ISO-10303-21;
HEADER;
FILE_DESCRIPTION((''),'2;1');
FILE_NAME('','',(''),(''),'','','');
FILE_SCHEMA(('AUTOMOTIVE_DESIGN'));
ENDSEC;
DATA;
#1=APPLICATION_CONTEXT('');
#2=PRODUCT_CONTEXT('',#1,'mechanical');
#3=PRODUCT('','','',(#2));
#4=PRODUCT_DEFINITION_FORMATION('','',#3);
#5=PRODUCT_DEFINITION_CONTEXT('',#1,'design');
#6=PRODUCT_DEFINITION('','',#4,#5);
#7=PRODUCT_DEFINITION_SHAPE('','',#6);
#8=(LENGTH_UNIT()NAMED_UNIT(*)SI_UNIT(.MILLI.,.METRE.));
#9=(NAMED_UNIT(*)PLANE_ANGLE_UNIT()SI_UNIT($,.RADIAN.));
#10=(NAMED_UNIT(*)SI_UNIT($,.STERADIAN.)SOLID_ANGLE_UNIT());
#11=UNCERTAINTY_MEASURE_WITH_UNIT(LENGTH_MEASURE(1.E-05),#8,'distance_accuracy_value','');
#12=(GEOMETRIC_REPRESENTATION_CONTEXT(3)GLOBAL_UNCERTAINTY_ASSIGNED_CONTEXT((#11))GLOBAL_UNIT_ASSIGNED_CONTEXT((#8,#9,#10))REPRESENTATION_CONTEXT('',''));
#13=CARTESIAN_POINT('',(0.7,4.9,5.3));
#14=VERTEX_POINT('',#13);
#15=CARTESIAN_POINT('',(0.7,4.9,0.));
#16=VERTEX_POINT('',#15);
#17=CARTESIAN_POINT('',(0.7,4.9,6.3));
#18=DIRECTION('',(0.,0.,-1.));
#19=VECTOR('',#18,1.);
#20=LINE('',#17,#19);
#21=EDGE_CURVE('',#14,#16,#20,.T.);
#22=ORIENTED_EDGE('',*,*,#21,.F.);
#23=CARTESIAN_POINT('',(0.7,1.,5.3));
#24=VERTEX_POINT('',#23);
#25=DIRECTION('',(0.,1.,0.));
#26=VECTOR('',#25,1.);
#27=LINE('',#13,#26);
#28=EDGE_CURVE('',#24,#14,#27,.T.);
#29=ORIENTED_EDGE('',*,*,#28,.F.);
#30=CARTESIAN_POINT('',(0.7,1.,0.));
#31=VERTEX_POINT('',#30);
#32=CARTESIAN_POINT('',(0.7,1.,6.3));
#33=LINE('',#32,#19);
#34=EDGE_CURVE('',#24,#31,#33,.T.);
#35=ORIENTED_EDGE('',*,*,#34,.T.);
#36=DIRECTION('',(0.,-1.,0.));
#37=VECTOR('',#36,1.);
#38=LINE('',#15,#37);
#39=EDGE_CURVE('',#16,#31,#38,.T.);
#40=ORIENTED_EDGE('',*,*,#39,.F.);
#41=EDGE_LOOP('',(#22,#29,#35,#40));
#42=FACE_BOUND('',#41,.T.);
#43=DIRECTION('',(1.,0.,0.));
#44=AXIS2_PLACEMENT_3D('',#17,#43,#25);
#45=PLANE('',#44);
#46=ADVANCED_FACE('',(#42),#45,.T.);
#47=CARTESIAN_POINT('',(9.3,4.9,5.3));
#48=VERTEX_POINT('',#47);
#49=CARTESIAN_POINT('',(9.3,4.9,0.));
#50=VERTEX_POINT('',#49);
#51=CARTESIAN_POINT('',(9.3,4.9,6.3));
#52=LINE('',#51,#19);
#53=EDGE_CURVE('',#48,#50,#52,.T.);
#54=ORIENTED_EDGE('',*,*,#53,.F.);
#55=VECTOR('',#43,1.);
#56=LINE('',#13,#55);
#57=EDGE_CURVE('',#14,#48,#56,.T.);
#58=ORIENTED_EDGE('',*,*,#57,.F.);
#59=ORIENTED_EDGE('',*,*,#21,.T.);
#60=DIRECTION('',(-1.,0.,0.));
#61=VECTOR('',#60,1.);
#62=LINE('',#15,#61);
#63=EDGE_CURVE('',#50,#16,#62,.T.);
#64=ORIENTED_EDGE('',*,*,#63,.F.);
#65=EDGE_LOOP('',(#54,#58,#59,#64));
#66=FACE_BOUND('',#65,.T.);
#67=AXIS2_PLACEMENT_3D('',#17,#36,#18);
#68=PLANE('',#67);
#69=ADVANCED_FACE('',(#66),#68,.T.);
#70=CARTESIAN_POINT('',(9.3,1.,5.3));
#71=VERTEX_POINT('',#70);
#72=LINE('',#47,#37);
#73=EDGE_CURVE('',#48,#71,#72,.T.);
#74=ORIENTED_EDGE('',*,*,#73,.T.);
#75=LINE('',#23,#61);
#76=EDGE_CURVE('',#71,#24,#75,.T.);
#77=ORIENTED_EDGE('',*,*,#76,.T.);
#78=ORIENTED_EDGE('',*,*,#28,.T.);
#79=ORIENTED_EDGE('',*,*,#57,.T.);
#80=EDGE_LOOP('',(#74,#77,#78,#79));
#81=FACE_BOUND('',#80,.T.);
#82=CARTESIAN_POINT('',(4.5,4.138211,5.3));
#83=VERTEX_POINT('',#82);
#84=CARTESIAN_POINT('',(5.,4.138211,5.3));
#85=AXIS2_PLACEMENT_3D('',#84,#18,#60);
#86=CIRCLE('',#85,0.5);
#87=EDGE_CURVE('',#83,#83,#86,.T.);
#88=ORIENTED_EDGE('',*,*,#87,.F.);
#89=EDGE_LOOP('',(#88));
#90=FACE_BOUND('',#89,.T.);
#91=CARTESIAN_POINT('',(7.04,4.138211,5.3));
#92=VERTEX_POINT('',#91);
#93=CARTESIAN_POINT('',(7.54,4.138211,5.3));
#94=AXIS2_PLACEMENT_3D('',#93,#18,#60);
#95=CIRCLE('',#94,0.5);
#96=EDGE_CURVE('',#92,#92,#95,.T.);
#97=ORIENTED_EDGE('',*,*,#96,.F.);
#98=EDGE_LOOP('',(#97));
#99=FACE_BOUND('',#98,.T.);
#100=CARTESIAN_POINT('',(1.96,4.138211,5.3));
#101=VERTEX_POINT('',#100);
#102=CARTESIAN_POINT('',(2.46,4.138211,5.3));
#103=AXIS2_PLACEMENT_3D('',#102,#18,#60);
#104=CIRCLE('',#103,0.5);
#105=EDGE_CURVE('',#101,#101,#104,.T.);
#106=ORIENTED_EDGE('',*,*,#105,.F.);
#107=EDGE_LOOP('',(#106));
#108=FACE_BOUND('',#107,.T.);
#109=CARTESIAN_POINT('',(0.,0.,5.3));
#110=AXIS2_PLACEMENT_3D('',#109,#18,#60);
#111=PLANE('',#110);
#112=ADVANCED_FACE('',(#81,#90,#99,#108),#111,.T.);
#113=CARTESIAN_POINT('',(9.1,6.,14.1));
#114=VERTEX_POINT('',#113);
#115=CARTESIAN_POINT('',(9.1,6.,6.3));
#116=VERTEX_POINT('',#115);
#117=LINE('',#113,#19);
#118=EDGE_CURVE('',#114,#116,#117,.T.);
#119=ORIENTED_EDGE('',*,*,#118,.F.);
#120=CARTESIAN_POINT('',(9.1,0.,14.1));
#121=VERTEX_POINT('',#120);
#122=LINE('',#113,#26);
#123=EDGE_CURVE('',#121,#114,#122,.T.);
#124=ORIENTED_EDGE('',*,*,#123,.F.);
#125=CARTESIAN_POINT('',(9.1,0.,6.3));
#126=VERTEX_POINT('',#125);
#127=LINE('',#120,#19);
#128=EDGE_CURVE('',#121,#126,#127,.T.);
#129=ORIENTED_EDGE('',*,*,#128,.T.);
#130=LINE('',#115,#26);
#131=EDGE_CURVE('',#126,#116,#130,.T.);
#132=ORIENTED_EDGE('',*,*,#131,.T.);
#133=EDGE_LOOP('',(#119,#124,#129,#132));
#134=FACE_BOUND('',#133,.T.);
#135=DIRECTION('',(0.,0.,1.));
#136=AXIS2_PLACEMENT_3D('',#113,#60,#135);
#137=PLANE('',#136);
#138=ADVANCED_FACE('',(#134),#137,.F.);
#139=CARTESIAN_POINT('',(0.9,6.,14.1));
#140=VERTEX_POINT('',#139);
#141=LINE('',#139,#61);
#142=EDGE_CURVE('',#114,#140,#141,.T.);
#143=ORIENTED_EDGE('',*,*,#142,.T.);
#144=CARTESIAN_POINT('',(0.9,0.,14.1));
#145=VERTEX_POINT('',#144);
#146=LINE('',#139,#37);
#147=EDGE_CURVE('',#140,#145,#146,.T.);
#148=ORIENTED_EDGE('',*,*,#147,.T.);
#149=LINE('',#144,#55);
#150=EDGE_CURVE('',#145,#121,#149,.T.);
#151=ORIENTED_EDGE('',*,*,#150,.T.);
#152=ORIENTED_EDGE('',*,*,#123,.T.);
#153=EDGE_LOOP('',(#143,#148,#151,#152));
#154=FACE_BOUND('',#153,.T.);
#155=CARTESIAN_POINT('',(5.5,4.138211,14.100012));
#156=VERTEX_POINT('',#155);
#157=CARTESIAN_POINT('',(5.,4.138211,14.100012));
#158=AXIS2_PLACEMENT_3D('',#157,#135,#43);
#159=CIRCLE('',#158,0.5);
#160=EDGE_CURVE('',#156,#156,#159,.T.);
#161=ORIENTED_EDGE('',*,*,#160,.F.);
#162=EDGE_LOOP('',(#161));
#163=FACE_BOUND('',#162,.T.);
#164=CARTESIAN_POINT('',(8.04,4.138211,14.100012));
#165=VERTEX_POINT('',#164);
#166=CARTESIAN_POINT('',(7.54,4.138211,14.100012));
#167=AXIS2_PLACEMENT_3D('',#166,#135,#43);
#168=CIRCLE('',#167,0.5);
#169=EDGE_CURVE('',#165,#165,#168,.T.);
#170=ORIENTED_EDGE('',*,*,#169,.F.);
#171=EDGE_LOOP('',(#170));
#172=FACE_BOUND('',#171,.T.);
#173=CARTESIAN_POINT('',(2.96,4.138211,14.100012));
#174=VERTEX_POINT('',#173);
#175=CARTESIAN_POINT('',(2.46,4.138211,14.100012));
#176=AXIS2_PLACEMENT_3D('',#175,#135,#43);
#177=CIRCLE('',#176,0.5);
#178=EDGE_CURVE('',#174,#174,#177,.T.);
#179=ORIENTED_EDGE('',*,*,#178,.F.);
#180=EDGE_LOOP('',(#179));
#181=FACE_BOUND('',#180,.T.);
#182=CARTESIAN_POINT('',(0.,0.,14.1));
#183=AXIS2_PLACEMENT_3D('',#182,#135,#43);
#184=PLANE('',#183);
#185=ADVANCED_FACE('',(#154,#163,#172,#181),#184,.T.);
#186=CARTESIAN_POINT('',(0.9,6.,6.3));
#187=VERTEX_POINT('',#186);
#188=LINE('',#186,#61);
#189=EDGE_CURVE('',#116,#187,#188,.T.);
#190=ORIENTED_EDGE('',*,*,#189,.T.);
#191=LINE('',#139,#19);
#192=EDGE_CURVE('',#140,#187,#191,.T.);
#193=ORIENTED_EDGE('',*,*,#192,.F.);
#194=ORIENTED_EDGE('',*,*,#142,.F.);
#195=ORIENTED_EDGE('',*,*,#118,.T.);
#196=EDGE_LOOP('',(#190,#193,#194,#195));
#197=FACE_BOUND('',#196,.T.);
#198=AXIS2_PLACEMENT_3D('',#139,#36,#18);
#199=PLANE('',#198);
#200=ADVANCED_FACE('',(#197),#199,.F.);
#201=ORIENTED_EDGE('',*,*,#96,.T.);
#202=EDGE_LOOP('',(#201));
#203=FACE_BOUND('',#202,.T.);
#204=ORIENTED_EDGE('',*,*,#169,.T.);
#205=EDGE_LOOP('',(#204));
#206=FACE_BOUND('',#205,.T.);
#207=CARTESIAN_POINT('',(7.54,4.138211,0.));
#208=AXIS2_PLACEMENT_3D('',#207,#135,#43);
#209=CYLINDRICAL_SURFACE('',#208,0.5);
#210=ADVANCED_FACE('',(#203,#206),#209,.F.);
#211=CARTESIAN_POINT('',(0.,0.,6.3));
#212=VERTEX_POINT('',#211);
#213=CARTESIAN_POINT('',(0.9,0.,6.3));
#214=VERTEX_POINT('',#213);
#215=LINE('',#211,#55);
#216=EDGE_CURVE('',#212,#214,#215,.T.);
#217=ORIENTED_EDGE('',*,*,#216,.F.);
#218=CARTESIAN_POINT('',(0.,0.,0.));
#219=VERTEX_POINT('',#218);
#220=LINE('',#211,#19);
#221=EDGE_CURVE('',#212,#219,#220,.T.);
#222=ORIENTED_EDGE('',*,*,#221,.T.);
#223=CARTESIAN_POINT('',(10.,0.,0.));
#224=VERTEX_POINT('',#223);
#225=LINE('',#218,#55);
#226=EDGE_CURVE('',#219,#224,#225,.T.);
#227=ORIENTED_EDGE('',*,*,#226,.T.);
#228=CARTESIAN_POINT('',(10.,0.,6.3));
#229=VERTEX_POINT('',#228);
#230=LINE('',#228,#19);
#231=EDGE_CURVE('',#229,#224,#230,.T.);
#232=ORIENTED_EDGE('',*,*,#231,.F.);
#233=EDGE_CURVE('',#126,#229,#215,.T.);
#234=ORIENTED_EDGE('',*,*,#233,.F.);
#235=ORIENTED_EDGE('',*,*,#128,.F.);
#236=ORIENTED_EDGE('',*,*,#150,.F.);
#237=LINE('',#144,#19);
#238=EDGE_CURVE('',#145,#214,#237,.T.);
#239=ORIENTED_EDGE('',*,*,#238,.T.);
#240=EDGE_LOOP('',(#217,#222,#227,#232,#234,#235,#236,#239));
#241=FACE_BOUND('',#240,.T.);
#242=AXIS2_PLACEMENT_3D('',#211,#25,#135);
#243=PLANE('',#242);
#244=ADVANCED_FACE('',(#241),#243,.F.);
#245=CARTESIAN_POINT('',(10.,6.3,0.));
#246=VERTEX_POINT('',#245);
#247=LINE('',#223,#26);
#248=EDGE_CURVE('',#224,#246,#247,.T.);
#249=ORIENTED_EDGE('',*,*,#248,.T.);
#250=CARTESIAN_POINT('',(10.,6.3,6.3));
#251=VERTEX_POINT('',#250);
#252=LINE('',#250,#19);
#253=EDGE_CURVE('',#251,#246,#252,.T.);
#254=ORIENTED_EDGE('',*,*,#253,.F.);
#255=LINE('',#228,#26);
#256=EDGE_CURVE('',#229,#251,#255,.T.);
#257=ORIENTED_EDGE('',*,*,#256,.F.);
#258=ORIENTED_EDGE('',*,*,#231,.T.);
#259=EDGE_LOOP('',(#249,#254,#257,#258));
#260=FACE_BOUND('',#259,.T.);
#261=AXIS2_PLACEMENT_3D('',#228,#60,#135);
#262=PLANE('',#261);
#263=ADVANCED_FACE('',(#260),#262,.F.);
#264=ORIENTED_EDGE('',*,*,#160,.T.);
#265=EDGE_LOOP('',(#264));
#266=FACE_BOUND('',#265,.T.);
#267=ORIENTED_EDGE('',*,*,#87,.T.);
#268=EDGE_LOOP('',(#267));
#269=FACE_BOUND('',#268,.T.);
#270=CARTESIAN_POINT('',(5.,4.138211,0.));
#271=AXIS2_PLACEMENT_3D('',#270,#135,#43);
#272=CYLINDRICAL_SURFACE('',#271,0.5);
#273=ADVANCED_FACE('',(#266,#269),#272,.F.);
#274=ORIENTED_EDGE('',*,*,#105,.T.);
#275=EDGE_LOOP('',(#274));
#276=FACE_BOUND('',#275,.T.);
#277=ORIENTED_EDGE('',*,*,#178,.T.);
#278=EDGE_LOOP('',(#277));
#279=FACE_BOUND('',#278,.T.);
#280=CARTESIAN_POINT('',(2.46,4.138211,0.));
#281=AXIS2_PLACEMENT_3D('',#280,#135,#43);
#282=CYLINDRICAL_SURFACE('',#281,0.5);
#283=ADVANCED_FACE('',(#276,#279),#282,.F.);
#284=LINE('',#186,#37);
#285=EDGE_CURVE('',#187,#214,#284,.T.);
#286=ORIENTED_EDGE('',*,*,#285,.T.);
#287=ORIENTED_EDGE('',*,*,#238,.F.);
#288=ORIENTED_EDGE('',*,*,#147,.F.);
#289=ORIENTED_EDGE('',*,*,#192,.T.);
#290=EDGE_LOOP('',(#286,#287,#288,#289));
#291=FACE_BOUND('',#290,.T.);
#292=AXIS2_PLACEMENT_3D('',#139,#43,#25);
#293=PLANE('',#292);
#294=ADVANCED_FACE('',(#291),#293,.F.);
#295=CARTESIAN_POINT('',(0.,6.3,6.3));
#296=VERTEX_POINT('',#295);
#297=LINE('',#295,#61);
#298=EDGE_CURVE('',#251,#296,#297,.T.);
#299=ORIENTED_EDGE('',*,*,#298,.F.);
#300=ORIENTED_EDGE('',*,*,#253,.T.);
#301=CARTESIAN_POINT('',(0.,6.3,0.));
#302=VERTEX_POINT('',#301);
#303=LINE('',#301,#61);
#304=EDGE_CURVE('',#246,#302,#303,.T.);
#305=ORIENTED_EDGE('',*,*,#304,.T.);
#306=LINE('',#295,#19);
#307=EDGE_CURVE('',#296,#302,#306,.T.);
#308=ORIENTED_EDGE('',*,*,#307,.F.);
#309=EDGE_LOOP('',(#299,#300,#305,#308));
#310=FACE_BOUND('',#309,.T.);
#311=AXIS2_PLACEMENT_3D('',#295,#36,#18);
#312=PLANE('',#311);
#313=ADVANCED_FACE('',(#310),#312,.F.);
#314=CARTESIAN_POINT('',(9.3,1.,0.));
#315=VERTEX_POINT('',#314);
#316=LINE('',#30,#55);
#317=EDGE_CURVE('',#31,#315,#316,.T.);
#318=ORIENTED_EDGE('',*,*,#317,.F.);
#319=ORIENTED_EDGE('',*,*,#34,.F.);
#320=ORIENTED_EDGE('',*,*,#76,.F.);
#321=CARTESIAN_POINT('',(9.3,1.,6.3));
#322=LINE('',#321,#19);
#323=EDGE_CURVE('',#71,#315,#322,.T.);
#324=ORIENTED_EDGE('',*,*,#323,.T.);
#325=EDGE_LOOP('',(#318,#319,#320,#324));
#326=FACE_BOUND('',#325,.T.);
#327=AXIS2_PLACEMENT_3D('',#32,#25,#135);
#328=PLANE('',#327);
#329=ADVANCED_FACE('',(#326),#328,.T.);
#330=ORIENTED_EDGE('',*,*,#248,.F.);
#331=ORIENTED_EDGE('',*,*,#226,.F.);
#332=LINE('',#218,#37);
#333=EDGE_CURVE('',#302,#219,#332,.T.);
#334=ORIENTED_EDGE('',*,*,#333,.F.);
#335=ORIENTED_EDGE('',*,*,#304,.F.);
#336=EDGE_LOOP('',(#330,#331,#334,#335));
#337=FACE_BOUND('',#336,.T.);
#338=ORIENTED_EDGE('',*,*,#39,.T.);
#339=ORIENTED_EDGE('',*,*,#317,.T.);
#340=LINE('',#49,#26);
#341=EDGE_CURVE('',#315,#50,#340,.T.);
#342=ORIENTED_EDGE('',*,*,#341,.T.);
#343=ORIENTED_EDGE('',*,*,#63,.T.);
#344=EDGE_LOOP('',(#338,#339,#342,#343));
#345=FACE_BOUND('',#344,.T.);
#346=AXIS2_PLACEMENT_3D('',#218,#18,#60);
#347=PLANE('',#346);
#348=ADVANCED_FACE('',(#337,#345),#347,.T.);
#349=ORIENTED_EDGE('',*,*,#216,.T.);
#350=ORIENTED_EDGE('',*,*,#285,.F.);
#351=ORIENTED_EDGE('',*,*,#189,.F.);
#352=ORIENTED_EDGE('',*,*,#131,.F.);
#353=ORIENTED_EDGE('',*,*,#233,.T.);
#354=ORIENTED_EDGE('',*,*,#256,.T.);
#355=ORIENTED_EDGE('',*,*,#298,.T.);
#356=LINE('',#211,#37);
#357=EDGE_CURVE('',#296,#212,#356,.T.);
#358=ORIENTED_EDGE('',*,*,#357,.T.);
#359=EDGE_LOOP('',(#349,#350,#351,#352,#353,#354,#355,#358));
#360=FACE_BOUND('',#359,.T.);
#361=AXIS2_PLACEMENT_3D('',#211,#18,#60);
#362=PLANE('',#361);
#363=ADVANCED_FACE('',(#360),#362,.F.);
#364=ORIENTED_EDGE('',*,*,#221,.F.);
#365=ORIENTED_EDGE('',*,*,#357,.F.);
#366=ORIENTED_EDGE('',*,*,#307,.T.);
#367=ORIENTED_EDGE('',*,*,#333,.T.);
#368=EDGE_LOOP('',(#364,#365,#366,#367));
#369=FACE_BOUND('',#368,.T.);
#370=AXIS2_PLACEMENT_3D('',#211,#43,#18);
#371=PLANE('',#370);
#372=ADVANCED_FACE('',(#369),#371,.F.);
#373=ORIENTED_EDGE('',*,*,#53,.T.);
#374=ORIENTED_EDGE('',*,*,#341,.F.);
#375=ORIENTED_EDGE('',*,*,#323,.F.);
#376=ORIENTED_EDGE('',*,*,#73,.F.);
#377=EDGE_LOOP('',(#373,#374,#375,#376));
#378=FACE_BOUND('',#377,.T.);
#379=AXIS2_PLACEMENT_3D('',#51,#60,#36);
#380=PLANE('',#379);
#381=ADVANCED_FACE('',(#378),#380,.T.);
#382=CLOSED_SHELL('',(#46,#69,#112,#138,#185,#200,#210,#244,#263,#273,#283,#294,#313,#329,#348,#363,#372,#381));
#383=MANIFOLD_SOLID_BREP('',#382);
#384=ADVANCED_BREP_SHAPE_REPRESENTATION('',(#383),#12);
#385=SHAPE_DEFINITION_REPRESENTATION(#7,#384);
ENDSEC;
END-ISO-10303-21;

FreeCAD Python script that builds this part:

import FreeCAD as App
import Part
import Sketcher
from FreeCAD import Vector
Q = App.Units.Quantity


def add_polygon(sketch, points):
    """Adds a closed chain of lines whose ends are joined by coincident constraints."""
    first, n = sketch.GeometryCount, len(points)
    for a, b in zip(points, points[1:] + points[:1]):
        sketch.addGeometry(Part.LineSegment(App.Vector(*a, 0), App.Vector(*b, 0)), False)
    for i in range(n):
        sketch.addConstraint(Sketcher.Constraint("Coincident", first + i, 2, first + (i + 1) % n, 1))

doc = App.newDocument("Part")
body = doc.addObject("PartDesign::Body", "Body")

# Sketch on XY plane
sketch1 = body.newObject("Sketcher::SketchObject", "Sketch")
sketch1.AttachmentSupport = (doc.getObject("XY_Plane"), [""])
sketch1.MapMode = "FlatFace"
add_polygon(sketch1, [(0, 6.3), (0, 0), (10, 0), (10, 6.3)])  # lines 0-3
add_polygon(sketch1, [(9.3, 1), (0.7, 1), (0.7, 4.9), (9.3, 4.9)])  # lines 4-7
sketch1.addConstraint([
    Sketcher.Constraint("Vertical", 0),
    Sketcher.Constraint("Horizontal", 1),
    Sketcher.Constraint("Vertical", 2),
    Sketcher.Constraint("Horizontal", 3),
    Sketcher.Constraint("Horizontal", 4),
    Sketcher.Constraint("Vertical", 5),
    Sketcher.Constraint("Horizontal", 6),
    Sketcher.Constraint("Vertical", 7),
    Sketcher.Constraint("Coincident", 0, 2, -1, 1),
    Sketcher.Constraint("DistanceX", 1, 1, 1, 2, Q("10 mm")),
    Sketcher.Constraint("DistanceX", 4, 2, 4, 1, Q("8.6 mm")),
    Sketcher.Constraint("DistanceY", 0, 2, 0, 1, Q("6.3 mm")),
    Sketcher.Constraint("DistanceY", 5, 1, 5, 2, Q("3.9 mm")),
    Sketcher.Constraint("DistanceY", -1, 1, 4, 2, Q("1 mm")),
    Sketcher.Constraint("DistanceX", -1, 1, 4, 2, Q("0.7 mm")),
])
pad1 = body.newObject("PartDesign::Pad", "Pad")
pad1.Profile = sketch1
pad1.Length = 6.3

# Sketch on XY plane
sketch2 = body.newObject("Sketcher::SketchObject", "Sketch001")
sketch2.AttachmentSupport = (doc.getObject("XY_Plane"), [""])
sketch2.MapMode = "FlatFace"
sketch2.AttachmentOffset = App.Placement(Vector(0, 0, 6.3), App.Rotation())
add_polygon(sketch2, [(1, 6), (1, 0), (9, 0), (9, 6)])  # lines 0-3
sketch2.addConstraint([
    Sketcher.Constraint("Vertical", 0),
    Sketcher.Constraint("Horizontal", 1),
    Sketcher.Constraint("Vertical", 2),
    Sketcher.Constraint("Horizontal", 3),
    Sketcher.Constraint("PointOnObject", 0, 2, -1),
    Sketcher.Constraint("DistanceY", 0, 2, 0, 1, Q("6 mm")),
    Sketcher.Constraint("DistanceX", 1, 1, 1, 2, Q("8.2 mm")),
    Sketcher.Constraint("DistanceX", -1, 1, 0, 2, Q("0.9 mm")),
])
pad2 = body.newObject("PartDesign::Pad", "Pad001")
pad2.Profile = sketch2
pad2.Length = 7.8

# Sketch on XY plane
sketch3 = body.newObject("Sketcher::SketchObject", "Sketch002")
sketch3.AttachmentSupport = (doc.getObject("XY_Plane"), [""])
sketch3.MapMode = "FlatFace"
sketch3.AttachmentOffset = App.Placement(Vector(0, 0, 6.3), App.Rotation())
add_polygon(sketch3, [(10, 6), (10, 0), (0, 0), (0, 6)])  # lines 0-3
sketch3.addConstraint([
    Sketcher.Constraint("Vertical", 0),
    Sketcher.Constraint("Horizontal", 1),
    Sketcher.Constraint("Vertical", 2),
    Sketcher.Constraint("Horizontal", 3),
    Sketcher.Constraint("Coincident", 1, 2, -1, 1),
    Sketcher.Constraint("DistanceX", 1, 2, 1, 1, Q("10 mm")),
    Sketcher.Constraint("DistanceY", 0, 2, 0, 1, Q("6.3 mm")),
])
pad3 = body.newObject("PartDesign::Pad", "Pad002")
pad3.Profile = sketch3
pad3.Length = 1
pad3.Reversed = True

# Sketch on XY plane
sketch4 = body.newObject("Sketcher::SketchObject", "Sketch003")
sketch4.AttachmentSupport = (doc.getObject("XY_Plane"), [""])
sketch4.MapMode = "FlatFace"
sketch4.AttachmentOffset = App.Placement(Vector(0, 0, 14.1), App.Rotation())
sketch4.addGeometry([
    Part.Circle(Vector(2.5, 4.1, 0), Vector(0, 0, 1), 0.5),
    Part.Circle(Vector(5, 4.1, 0), Vector(0, 0, 1), 0.5),
    Part.Circle(Vector(7.5, 4.1, 0), Vector(0, 0, 1), 0.5),
], False)
sketch4.addConstraint([
    Sketcher.Constraint("Equal", 0, 1),
    Sketcher.Constraint("Equal", 1, 2),
    Sketcher.Constraint("Horizontal", 0, 3, 1, 3),
    Sketcher.Constraint("Horizontal", 1, 3, 2, 3),
    Sketcher.Constraint("Diameter", 0, Q("1 mm")),
    Sketcher.Constraint("DistanceX", -1, 1, 1, 3, Q("5 mm")),
    Sketcher.Constraint("DistanceX", -1, 1, 0, 3, Q("2.46 mm")),
    Sketcher.Constraint("DistanceX", -1, 1, 2, 3, Q("7.54 mm")),
    Sketcher.Constraint("DistanceY", -1, 1, 0, 3, Q("4.138211 mm")),
])
pocket1 = body.newObject("PartDesign::Pocket", "Pocket")
pocket1.Profile = sketch4
pocket1.Type = "ThroughAll"
pocket1.Midplane = True

doc.recompute()
